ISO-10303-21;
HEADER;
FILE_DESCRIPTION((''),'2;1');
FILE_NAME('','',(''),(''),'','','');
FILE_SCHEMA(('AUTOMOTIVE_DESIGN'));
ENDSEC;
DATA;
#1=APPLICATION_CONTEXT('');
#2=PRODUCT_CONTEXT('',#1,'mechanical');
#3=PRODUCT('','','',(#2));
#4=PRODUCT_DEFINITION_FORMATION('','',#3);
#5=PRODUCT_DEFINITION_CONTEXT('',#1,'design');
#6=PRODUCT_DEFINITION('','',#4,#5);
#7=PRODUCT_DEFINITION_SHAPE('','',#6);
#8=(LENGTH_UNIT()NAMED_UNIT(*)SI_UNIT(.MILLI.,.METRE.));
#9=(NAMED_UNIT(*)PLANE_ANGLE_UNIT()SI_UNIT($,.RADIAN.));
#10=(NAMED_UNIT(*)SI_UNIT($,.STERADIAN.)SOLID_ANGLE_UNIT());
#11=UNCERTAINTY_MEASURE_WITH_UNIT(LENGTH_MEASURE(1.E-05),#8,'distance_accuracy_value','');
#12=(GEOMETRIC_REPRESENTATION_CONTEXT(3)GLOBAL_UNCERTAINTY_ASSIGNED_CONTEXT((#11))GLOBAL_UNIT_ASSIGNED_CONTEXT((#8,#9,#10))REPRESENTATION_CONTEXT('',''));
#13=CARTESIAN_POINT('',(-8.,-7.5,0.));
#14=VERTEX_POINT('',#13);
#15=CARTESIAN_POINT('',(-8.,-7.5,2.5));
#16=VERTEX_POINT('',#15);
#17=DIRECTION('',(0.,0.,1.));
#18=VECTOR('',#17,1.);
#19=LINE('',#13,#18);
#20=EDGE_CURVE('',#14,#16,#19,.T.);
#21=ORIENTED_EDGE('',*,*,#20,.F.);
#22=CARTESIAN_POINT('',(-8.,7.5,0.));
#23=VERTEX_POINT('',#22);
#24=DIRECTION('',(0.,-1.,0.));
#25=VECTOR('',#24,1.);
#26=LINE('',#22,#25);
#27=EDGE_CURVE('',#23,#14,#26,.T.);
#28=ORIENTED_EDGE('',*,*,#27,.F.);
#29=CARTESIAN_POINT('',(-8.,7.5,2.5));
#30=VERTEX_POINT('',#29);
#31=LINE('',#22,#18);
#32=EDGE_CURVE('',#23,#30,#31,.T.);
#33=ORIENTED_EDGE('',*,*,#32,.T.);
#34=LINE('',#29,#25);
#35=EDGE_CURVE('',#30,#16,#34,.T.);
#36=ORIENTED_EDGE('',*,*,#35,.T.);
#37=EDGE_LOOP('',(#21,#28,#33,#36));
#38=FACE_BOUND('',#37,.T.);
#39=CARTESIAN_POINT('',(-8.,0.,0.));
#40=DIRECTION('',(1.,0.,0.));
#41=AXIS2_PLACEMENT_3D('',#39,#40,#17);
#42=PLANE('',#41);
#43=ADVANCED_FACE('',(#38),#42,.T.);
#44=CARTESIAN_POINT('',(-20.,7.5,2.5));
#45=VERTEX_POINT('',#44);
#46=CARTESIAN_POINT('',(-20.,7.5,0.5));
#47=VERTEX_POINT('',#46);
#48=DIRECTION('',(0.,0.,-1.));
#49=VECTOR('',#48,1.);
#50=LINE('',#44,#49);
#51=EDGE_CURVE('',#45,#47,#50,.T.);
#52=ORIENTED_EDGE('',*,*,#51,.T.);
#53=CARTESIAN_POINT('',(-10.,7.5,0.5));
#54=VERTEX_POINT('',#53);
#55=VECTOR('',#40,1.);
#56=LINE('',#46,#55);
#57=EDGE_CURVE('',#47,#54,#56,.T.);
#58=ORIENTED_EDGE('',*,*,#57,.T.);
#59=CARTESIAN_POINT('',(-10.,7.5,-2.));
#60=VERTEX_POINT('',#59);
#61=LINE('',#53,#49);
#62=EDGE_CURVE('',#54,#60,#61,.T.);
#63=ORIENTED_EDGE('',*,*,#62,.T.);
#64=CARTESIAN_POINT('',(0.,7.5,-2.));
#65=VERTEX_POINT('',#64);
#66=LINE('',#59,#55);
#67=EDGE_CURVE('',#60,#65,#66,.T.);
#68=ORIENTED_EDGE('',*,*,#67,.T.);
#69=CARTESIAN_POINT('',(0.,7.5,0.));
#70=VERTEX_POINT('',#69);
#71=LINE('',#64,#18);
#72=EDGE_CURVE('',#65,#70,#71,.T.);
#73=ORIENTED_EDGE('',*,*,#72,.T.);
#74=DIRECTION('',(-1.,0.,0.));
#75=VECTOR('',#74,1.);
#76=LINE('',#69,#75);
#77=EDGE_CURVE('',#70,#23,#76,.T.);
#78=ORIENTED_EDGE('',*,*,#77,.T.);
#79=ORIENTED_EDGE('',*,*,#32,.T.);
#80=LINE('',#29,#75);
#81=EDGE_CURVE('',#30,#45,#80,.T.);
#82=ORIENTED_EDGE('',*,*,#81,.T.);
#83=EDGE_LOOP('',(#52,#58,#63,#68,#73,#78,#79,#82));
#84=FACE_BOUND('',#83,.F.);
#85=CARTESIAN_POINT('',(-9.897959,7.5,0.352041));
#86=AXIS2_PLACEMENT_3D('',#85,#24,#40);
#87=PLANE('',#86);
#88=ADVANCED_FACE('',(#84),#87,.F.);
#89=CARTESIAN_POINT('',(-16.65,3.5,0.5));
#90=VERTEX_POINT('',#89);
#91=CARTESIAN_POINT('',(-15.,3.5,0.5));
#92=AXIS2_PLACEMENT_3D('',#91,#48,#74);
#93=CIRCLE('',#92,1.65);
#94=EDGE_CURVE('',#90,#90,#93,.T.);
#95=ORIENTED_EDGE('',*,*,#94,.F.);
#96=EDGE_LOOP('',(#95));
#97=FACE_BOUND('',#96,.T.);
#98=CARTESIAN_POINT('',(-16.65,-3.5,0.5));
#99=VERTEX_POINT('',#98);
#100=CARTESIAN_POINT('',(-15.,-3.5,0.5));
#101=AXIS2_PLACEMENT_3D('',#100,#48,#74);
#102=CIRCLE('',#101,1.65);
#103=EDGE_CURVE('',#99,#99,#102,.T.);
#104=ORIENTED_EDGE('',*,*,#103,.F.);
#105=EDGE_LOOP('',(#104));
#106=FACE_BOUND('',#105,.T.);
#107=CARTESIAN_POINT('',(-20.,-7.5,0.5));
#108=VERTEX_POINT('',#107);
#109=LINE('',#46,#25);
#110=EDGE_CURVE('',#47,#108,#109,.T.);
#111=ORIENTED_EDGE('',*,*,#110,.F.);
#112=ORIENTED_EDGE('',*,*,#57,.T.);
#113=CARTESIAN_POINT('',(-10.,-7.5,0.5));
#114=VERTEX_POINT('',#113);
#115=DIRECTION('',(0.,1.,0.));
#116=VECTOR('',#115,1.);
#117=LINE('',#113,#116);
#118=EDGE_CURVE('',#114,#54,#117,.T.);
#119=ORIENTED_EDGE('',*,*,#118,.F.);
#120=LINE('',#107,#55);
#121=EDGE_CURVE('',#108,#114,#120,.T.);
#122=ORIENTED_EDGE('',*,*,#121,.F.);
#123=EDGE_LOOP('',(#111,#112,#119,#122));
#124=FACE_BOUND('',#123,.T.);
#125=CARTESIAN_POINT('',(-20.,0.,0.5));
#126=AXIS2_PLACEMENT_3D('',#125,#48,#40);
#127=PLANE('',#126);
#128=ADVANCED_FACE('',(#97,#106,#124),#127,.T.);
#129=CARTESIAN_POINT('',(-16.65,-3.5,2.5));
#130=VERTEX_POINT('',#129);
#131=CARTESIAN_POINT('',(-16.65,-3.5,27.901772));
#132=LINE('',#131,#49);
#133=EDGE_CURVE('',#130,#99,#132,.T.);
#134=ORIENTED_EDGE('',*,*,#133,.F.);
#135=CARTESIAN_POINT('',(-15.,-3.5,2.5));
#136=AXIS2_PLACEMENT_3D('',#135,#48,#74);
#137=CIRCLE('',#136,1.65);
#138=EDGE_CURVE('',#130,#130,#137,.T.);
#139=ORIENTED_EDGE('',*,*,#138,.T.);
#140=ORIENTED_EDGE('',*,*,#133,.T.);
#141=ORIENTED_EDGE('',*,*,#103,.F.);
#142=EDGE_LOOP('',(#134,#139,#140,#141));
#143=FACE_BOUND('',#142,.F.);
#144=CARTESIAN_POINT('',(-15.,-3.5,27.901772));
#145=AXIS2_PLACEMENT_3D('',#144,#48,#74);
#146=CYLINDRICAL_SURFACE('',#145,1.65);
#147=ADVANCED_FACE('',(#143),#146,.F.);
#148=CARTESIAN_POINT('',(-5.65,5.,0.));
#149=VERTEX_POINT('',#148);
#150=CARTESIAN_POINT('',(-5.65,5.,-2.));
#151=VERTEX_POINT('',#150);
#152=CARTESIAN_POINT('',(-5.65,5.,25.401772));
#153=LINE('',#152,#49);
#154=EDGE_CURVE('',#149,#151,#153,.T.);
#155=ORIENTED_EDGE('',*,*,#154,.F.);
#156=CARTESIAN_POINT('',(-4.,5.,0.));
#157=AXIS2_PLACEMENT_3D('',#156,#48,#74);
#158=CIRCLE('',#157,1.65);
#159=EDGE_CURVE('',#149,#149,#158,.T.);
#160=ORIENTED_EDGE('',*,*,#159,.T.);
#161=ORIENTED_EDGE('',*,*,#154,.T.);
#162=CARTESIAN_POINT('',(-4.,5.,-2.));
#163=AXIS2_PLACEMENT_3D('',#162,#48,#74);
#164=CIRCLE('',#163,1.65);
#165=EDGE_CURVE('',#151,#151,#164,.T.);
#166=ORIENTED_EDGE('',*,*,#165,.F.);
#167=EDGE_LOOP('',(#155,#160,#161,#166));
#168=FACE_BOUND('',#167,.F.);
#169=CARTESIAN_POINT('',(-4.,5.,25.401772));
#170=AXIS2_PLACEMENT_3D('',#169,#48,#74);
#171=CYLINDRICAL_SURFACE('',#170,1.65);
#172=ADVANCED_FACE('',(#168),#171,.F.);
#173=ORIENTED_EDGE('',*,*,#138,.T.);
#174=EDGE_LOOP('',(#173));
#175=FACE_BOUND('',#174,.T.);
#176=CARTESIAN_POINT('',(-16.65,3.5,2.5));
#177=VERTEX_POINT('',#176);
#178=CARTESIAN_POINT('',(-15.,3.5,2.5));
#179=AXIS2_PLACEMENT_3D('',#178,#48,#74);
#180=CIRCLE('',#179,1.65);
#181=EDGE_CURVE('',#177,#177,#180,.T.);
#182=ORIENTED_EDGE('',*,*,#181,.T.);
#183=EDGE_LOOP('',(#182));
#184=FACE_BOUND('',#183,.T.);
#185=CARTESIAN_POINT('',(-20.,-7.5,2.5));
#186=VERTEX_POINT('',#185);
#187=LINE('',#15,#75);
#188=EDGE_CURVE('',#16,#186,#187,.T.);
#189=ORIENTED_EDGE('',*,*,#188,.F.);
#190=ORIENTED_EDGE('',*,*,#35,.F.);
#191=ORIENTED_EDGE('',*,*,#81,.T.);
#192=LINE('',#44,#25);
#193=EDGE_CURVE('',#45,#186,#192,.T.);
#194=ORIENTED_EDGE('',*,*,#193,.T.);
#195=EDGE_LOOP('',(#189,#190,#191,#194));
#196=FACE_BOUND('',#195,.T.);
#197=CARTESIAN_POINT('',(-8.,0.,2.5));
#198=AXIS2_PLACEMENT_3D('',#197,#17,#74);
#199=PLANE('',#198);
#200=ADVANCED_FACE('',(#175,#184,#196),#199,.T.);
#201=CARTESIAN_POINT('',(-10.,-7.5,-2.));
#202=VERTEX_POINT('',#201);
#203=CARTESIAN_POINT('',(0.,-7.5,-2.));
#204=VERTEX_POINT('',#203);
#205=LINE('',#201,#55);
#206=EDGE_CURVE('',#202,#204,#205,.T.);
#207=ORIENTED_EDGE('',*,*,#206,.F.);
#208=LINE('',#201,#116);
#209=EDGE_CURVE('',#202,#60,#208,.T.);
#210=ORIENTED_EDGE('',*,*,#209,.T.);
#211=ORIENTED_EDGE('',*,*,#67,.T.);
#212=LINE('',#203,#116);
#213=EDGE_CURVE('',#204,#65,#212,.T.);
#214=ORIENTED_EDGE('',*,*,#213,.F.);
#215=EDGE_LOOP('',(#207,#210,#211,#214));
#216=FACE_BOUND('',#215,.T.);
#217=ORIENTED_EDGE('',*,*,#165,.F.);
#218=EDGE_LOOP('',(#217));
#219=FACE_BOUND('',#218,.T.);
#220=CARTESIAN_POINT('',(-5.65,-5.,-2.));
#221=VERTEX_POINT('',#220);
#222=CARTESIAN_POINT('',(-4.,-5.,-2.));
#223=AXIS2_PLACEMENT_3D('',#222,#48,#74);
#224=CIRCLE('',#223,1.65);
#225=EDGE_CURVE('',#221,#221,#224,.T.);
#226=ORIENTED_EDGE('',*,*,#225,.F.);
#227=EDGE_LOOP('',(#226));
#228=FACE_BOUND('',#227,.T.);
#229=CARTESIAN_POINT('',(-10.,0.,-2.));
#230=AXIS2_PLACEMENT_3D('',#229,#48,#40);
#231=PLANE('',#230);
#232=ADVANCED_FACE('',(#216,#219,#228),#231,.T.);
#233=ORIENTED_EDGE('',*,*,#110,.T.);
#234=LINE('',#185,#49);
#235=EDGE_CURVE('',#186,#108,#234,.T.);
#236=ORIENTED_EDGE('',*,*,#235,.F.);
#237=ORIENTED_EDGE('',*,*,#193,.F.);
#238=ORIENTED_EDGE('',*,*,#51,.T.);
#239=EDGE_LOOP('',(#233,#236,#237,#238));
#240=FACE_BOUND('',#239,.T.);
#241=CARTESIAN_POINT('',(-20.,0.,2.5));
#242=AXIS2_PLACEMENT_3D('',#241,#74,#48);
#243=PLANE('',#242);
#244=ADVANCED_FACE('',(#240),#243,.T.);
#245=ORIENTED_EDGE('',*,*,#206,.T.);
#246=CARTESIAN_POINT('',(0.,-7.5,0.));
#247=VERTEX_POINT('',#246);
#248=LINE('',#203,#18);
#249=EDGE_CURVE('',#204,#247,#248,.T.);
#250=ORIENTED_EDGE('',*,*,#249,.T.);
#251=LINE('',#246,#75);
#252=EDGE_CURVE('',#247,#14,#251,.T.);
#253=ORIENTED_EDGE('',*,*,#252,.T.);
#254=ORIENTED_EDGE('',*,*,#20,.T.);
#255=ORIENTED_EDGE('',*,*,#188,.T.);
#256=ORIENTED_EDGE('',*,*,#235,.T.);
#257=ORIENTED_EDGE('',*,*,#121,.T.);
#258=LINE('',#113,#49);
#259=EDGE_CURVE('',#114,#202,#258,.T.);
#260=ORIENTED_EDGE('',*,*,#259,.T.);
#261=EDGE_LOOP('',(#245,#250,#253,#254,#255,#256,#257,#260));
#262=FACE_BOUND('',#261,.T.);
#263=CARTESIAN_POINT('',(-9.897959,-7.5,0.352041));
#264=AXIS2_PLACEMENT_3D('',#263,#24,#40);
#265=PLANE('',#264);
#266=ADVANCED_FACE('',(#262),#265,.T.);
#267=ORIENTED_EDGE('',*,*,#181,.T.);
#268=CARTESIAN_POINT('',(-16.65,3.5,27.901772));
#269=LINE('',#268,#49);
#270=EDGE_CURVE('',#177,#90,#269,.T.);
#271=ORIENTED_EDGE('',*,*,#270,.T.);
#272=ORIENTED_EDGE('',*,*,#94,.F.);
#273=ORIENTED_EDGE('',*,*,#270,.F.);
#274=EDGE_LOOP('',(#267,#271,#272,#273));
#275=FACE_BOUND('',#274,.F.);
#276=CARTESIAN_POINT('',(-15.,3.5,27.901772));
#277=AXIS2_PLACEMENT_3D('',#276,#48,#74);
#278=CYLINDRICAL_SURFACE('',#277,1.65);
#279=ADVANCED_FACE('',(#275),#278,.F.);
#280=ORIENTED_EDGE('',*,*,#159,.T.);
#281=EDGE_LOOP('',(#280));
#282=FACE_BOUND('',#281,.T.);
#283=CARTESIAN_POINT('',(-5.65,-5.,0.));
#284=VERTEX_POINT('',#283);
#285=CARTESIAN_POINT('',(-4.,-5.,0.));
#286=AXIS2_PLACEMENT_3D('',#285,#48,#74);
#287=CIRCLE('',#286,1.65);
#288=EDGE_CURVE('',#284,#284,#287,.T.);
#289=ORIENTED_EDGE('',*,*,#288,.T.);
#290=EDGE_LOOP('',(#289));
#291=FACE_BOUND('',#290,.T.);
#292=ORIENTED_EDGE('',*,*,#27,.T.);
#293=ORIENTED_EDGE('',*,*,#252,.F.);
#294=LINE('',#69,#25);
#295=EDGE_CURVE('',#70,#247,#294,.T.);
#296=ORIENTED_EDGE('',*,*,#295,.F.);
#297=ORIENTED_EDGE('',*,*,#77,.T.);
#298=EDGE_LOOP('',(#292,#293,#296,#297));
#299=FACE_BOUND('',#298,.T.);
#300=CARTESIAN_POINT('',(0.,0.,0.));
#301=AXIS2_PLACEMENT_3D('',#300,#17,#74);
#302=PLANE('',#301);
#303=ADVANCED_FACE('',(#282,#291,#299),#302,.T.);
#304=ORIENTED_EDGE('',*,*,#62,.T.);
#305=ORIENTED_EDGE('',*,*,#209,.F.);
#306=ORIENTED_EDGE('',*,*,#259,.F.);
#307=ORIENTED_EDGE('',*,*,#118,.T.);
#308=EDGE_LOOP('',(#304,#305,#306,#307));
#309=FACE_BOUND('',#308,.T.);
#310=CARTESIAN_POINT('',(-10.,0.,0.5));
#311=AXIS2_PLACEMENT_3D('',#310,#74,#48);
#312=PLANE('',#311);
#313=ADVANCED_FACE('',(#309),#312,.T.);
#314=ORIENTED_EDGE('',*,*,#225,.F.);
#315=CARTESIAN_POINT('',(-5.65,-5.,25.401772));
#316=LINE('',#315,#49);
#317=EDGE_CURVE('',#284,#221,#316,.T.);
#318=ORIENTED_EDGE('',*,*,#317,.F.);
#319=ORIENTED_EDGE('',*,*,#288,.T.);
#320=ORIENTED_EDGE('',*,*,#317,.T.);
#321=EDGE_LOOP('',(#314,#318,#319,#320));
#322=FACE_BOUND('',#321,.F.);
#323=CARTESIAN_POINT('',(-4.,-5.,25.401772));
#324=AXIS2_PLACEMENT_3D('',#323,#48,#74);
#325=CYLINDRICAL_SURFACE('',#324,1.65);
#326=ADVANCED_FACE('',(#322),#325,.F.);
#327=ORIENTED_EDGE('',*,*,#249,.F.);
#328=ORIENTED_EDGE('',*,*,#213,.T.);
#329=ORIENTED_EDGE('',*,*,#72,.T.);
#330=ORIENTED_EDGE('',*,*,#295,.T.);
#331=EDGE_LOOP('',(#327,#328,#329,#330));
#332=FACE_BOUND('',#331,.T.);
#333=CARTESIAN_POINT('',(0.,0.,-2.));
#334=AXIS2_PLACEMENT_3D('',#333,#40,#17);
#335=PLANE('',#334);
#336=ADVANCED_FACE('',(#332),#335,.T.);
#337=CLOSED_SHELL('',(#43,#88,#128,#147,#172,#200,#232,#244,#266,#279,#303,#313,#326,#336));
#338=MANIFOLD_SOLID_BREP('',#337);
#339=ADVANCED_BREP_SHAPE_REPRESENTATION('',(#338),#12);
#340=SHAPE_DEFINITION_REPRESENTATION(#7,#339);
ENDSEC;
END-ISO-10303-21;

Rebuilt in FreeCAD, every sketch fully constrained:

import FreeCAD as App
import Part
import Sketcher


def add_polygon(sketch, points):
    """Adds a closed chain of lines whose ends are joined by coincident constraints."""
    first, n = sketch.GeometryCount, len(points)
    for a, b in zip(points, points[1:] + points[:1]):
        sketch.addGeometry(Part.LineSegment(App.Vector(*a, 0), App.Vector(*b, 0)), False)
    for i in range(n):
        sketch.addConstraint(Sketcher.Constraint("Coincident", first + i, 2, first + (i + 1) % n, 1))

doc = App.newDocument("Part")
body = doc.addObject("PartDesign::Body", "Body")

# Sketch on XZ plane
sketch1 = body.newObject("Sketcher::SketchObject", "Sketch")
sketch1.AttachmentSupport = (doc.getObject("XZ_Plane"), [""])
sketch1.MapMode = "FlatFace"
add_polygon(sketch1, [(0, -2), (0, 0), (-8, 0), (-8, 2.5), (-20, 2.5), (-20, 0.5), (-10, 0.5), (-10, -2)])  # lines 0-7
sketch1.addConstraint([
    Sketcher.Constraint("Vertical", 0),
    Sketcher.Constraint("Horizontal", 1),
    Sketcher.Constraint("Vertical", 2),
    Sketcher.Constraint("Horizontal", 3),
    Sketcher.Constraint("Vertical", 4),
    Sketcher.Constraint("Horizontal", 5),
    Sketcher.Constraint("Vertical", 6),
    Sketcher.Constraint("Horizontal", 7),
    Sketcher.Constraint("Coincident", 0, 2, -1, 1),
    Sketcher.Constraint("Equal", 5, 7),
    Sketcher.Constraint("Equal", 0, 4),
    Sketcher.Constraint("DistanceX", 1, 2, 1, 1, 8.0),
    Sketcher.Constraint("DistanceX", 3, 2, 3, 1, 12.0),
    Sketcher.Constraint("DistanceY", 0, 1, 0, 2, 2.0),
    Sketcher.Constraint("DistanceY", 2, 1, 2, 2, 2.5),
])
pad1 = body.newObject("PartDesign::Pad", "Pad")
pad1.Profile = sketch1
pad1.Length = 15
pad1.Midplane = True

# Sketch on XY plane
sketch2 = body.newObject("Sketcher::SketchObject", "Sketch001")
sketch2.AttachmentSupport = (doc.getObject("XY_Plane"), [""])
sketch2.MapMode = "FlatFace"
sketch2.AttachmentOffset = App.Placement(App.Vector(0, 0, 2.5), App.Rotation())
sketch2.addGeometry([
    Part.Circle(App.Vector(-15, -3.5, 0), App.Vector(0, 0, 1), 1.6),
    Part.Circle(App.Vector(-15, 3.5, 0), App.Vector(0, 0, 1), 1.6),
], False)
sketch2.addConstraint([
    Sketcher.Constraint("Equal", 0, 1),
    Sketcher.Constraint("Symmetric", 0, 3, 1, 3, -1),
    Sketcher.Constraint("Diameter", 0, 3.3),
    Sketcher.Constraint("DistanceX", 0, 3, -1, 1, 15.0),
    Sketcher.Constraint("DistanceY", 0, 3, 1, 3, 7.0),
])
doc.recompute()
hole = body.newObject("PartDesign::Hole", "Hole")
hole.Profile = sketch2
hole.ThreadType = "None"
hole.Diameter = 3.3
hole.DepthType = "ThroughAll"

# Sketch on XY plane
sketch3 = body.newObject("Sketcher::SketchObject", "Sketch002")
sketch3.AttachmentSupport = (doc.getObject("XY_Plane"), [""])
sketch3.MapMode = "FlatFace"
sketch3.addGeometry([
    Part.Circle(App.Vector(-4, -5, 0), App.Vector(0, 0, 1), 1.6),
    Part.Circle(App.Vector(-4, 5, 0), App.Vector(0, 0, 1), 1.6),
], False)
sketch3.addConstraint([
    Sketcher.Constraint("Equal", 0, 1),
    Sketcher.Constraint("Symmetric", 0, 3, 1, 3, -1),
    Sketcher.Constraint("Diameter", 0, 3.3),
    Sketcher.Constraint("DistanceX", 0, 3, -1, 1, 4.0),
    Sketcher.Constraint("DistanceY", 0, 3, -1, 1, 5.0),
])
doc.recompute()
hole2 = body.newObject("PartDesign::Hole", "Hole001")
hole2.Profile = sketch3
hole2.ThreadType = "None"
hole2.Diameter = 3.3
hole2.DepthType = "ThroughAll"

doc.recompute()
